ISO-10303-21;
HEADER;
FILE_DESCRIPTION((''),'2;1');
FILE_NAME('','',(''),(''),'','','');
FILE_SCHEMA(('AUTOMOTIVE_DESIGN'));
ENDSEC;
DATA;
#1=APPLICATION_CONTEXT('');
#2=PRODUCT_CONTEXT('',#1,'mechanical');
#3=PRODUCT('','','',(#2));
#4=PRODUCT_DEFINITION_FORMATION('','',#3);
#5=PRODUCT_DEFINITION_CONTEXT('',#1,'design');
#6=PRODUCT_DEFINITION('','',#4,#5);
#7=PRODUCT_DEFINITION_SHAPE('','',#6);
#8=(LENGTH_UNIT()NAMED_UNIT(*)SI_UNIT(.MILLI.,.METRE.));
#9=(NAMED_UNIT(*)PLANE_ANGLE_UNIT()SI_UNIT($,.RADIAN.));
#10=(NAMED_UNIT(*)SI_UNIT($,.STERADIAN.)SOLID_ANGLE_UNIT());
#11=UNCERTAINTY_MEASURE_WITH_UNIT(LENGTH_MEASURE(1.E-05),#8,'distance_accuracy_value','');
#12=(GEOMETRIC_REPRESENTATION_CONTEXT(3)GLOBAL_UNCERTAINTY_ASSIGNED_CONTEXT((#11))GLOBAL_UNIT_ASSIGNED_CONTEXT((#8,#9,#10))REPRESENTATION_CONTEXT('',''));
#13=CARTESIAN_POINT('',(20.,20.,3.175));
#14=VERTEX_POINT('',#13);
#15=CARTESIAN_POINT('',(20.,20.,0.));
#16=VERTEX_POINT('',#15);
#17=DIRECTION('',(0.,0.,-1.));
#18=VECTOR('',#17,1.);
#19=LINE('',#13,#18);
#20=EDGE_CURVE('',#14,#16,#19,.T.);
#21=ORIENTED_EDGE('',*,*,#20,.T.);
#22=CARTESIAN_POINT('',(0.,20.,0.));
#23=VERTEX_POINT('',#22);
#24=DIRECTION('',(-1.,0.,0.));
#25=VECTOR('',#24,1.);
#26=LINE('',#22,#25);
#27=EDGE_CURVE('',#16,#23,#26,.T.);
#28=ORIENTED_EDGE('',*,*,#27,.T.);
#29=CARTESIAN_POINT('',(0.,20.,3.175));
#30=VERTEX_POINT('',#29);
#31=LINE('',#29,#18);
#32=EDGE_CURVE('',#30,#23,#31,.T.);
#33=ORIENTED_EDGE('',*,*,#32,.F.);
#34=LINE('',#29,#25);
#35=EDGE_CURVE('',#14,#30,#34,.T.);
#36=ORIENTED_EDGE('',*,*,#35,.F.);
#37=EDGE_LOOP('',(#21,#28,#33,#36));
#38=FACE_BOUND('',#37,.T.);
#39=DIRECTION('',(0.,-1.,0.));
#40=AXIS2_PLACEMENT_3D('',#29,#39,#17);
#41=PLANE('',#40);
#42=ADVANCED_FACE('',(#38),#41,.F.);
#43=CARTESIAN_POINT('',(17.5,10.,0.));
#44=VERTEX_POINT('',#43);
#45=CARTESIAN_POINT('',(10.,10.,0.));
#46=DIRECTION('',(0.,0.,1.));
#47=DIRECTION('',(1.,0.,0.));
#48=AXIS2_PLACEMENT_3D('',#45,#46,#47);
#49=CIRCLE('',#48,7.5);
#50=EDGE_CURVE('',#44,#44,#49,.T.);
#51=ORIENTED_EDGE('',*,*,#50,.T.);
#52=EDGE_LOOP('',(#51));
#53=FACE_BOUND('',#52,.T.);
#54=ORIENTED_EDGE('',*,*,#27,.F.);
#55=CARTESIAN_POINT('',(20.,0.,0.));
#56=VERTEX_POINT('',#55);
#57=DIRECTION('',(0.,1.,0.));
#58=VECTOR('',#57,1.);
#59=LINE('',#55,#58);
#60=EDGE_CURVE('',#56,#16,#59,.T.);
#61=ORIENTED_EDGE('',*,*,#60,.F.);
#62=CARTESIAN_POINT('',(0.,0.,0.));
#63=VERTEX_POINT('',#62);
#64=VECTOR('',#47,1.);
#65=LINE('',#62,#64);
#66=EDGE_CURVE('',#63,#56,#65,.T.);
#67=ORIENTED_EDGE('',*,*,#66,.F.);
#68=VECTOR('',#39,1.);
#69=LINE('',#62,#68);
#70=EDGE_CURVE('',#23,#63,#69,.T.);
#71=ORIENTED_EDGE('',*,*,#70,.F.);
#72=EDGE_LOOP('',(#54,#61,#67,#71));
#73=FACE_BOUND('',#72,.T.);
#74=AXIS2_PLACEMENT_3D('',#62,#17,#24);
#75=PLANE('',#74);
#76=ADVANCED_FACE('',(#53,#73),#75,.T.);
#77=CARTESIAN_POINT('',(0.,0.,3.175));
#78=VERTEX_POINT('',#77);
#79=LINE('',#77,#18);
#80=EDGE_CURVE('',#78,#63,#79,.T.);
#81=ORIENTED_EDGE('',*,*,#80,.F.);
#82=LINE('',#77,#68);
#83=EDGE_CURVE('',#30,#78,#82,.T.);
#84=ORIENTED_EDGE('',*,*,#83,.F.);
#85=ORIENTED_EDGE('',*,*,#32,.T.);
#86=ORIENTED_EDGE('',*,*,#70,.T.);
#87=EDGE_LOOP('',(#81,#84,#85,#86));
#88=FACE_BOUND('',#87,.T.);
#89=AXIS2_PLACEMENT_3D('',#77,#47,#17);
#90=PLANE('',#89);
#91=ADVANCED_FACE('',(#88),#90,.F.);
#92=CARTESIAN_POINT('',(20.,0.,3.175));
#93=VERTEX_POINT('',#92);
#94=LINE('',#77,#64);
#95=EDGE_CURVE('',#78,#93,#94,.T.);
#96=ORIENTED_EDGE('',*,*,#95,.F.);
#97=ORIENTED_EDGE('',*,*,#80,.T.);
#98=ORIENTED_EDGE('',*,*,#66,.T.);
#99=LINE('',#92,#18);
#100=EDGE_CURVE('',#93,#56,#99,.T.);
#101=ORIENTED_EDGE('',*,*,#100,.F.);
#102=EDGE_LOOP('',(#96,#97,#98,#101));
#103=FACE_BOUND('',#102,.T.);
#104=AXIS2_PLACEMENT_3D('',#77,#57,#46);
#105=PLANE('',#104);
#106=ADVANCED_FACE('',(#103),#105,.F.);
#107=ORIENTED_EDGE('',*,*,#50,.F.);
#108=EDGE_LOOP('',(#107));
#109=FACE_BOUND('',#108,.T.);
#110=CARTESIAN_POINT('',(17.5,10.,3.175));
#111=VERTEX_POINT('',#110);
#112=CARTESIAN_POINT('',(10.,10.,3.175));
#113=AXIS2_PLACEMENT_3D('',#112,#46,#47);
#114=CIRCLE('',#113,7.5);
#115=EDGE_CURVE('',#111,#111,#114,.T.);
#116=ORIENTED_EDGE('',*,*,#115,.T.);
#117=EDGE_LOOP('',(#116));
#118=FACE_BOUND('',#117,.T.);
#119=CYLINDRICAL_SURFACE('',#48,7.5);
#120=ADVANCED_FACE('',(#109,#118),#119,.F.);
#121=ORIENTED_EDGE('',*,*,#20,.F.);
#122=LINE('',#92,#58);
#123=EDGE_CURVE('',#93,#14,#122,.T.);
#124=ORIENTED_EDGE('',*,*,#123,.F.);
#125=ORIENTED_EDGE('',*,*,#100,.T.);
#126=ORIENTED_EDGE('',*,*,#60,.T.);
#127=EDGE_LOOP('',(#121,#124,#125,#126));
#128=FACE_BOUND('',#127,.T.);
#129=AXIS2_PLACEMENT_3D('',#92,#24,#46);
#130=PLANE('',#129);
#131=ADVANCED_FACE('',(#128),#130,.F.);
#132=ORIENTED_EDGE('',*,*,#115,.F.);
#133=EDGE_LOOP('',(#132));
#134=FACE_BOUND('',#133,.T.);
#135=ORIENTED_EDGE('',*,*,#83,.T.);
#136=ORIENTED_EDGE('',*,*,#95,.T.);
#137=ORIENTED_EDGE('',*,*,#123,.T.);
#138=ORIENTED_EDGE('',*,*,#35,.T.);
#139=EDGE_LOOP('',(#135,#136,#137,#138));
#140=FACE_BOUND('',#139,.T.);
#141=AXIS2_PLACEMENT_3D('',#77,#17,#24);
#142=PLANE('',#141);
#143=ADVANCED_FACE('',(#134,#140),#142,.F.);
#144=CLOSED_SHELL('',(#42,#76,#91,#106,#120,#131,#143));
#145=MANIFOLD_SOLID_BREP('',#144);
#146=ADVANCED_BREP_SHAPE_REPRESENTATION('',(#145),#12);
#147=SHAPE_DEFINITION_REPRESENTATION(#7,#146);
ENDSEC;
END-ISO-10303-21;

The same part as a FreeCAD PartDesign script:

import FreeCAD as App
import Part
import Sketcher

V = App.Vector

doc = App.newDocument("Part")
params = doc.addObject("Spreadsheet::Sheet", "Params")
for row, (alias, value) in enumerate([
    ("sketch1_width", "20 mm"),
    ("pad1_length", "3.175 mm"),
    ("sketch2_diameter", "15 mm"),
    ("pocket1_length", "3.175 mm"),
], start=1):
    params.set(f"A{row}", alias)
    params.set(f"B{row}", "=" + value)
    params.setAlias(f"B{row}", alias)

body = doc.addObject("PartDesign::Body", "Body")

# Sketch on XY plane
sketch1 = body.newObject("Sketcher::SketchObject", "Sketch")
sketch1.AttachmentSupport = (doc.getObject("XY_Plane"), [""])
sketch1.MapMode = "FlatFace"
sketch1.addGeometry(Part.LineSegment(V(0, 20, 0), V(0, 0, 0)), False)
sketch1.addGeometry(Part.LineSegment(V(0, 0, 0), V(20, 0, 0)), False)
sketch1.addGeometry(Part.LineSegment(V(20, 0, 0), V(20, 20, 0)), False)
sketch1.addGeometry(Part.LineSegment(V(20, 20, 0), V(0, 20, 0)), False)
sketch1.addConstraint(Sketcher.Constraint("Coincident", 0, 2, 1, 1))
sketch1.addConstraint(Sketcher.Constraint("Coincident", 1, 2, 2, 1))
sketch1.addConstraint(Sketcher.Constraint("Coincident", 2, 2, 3, 1))
sketch1.addConstraint(Sketcher.Constraint("Coincident", 3, 2, 0, 1))
sketch1.addConstraint(Sketcher.Constraint("Vertical", 0))
sketch1.addConstraint(Sketcher.Constraint("Horizontal", 1))
sketch1.addConstraint(Sketcher.Constraint("Vertical", 2))
sketch1.addConstraint(Sketcher.Constraint("Horizontal", 3))
sketch1.addConstraint(Sketcher.Constraint("Coincident", 0, 2, -1, 1))
sketch1.addConstraint(Sketcher.Constraint("Equal", 3, 0))
sketch1.addConstraint(Sketcher.Constraint("DistanceX", 1, 1, 1, 2, 20.0))
sketch1.setExpression("Constraints[10]", "Params.sketch1_width")
pad1 = body.newObject("PartDesign::Pad", "Pad")
pad1.Profile = sketch1
pad1.setExpression("Length", "Params.pad1_length")

# Sketch on XY plane
sketch2 = body.newObject("Sketcher::SketchObject", "Sketch001")
sketch2.AttachmentSupport = (doc.getObject("XY_Plane"), [""])
sketch2.MapMode = "FlatFace"
sketch2.AttachmentOffset = App.Placement(V(0, 0, 3.175), App.Rotation())
sketch2.addGeometry(Part.Circle(V(10, 10, 0), V(0, 0, 1), 8), False)
sketch2.addConstraint(Sketcher.Constraint("Diameter", 0, 15.0))
sketch2.addConstraint(Sketcher.Constraint("DistanceX", -1, 1, 0, 3, 10.0))
sketch2.addConstraint(Sketcher.Constraint("DistanceY", -1, 1, 0, 3, 10.0))
sketch2.setExpression("Constraints[0]", "Params.sketch2_diameter")
pocket1 = body.newObject("PartDesign::Pocket", "Pocket")
pocket1.Profile = sketch2
pocket1.setExpression("Length", "Params.pocket1_length")

doc.recompute()
